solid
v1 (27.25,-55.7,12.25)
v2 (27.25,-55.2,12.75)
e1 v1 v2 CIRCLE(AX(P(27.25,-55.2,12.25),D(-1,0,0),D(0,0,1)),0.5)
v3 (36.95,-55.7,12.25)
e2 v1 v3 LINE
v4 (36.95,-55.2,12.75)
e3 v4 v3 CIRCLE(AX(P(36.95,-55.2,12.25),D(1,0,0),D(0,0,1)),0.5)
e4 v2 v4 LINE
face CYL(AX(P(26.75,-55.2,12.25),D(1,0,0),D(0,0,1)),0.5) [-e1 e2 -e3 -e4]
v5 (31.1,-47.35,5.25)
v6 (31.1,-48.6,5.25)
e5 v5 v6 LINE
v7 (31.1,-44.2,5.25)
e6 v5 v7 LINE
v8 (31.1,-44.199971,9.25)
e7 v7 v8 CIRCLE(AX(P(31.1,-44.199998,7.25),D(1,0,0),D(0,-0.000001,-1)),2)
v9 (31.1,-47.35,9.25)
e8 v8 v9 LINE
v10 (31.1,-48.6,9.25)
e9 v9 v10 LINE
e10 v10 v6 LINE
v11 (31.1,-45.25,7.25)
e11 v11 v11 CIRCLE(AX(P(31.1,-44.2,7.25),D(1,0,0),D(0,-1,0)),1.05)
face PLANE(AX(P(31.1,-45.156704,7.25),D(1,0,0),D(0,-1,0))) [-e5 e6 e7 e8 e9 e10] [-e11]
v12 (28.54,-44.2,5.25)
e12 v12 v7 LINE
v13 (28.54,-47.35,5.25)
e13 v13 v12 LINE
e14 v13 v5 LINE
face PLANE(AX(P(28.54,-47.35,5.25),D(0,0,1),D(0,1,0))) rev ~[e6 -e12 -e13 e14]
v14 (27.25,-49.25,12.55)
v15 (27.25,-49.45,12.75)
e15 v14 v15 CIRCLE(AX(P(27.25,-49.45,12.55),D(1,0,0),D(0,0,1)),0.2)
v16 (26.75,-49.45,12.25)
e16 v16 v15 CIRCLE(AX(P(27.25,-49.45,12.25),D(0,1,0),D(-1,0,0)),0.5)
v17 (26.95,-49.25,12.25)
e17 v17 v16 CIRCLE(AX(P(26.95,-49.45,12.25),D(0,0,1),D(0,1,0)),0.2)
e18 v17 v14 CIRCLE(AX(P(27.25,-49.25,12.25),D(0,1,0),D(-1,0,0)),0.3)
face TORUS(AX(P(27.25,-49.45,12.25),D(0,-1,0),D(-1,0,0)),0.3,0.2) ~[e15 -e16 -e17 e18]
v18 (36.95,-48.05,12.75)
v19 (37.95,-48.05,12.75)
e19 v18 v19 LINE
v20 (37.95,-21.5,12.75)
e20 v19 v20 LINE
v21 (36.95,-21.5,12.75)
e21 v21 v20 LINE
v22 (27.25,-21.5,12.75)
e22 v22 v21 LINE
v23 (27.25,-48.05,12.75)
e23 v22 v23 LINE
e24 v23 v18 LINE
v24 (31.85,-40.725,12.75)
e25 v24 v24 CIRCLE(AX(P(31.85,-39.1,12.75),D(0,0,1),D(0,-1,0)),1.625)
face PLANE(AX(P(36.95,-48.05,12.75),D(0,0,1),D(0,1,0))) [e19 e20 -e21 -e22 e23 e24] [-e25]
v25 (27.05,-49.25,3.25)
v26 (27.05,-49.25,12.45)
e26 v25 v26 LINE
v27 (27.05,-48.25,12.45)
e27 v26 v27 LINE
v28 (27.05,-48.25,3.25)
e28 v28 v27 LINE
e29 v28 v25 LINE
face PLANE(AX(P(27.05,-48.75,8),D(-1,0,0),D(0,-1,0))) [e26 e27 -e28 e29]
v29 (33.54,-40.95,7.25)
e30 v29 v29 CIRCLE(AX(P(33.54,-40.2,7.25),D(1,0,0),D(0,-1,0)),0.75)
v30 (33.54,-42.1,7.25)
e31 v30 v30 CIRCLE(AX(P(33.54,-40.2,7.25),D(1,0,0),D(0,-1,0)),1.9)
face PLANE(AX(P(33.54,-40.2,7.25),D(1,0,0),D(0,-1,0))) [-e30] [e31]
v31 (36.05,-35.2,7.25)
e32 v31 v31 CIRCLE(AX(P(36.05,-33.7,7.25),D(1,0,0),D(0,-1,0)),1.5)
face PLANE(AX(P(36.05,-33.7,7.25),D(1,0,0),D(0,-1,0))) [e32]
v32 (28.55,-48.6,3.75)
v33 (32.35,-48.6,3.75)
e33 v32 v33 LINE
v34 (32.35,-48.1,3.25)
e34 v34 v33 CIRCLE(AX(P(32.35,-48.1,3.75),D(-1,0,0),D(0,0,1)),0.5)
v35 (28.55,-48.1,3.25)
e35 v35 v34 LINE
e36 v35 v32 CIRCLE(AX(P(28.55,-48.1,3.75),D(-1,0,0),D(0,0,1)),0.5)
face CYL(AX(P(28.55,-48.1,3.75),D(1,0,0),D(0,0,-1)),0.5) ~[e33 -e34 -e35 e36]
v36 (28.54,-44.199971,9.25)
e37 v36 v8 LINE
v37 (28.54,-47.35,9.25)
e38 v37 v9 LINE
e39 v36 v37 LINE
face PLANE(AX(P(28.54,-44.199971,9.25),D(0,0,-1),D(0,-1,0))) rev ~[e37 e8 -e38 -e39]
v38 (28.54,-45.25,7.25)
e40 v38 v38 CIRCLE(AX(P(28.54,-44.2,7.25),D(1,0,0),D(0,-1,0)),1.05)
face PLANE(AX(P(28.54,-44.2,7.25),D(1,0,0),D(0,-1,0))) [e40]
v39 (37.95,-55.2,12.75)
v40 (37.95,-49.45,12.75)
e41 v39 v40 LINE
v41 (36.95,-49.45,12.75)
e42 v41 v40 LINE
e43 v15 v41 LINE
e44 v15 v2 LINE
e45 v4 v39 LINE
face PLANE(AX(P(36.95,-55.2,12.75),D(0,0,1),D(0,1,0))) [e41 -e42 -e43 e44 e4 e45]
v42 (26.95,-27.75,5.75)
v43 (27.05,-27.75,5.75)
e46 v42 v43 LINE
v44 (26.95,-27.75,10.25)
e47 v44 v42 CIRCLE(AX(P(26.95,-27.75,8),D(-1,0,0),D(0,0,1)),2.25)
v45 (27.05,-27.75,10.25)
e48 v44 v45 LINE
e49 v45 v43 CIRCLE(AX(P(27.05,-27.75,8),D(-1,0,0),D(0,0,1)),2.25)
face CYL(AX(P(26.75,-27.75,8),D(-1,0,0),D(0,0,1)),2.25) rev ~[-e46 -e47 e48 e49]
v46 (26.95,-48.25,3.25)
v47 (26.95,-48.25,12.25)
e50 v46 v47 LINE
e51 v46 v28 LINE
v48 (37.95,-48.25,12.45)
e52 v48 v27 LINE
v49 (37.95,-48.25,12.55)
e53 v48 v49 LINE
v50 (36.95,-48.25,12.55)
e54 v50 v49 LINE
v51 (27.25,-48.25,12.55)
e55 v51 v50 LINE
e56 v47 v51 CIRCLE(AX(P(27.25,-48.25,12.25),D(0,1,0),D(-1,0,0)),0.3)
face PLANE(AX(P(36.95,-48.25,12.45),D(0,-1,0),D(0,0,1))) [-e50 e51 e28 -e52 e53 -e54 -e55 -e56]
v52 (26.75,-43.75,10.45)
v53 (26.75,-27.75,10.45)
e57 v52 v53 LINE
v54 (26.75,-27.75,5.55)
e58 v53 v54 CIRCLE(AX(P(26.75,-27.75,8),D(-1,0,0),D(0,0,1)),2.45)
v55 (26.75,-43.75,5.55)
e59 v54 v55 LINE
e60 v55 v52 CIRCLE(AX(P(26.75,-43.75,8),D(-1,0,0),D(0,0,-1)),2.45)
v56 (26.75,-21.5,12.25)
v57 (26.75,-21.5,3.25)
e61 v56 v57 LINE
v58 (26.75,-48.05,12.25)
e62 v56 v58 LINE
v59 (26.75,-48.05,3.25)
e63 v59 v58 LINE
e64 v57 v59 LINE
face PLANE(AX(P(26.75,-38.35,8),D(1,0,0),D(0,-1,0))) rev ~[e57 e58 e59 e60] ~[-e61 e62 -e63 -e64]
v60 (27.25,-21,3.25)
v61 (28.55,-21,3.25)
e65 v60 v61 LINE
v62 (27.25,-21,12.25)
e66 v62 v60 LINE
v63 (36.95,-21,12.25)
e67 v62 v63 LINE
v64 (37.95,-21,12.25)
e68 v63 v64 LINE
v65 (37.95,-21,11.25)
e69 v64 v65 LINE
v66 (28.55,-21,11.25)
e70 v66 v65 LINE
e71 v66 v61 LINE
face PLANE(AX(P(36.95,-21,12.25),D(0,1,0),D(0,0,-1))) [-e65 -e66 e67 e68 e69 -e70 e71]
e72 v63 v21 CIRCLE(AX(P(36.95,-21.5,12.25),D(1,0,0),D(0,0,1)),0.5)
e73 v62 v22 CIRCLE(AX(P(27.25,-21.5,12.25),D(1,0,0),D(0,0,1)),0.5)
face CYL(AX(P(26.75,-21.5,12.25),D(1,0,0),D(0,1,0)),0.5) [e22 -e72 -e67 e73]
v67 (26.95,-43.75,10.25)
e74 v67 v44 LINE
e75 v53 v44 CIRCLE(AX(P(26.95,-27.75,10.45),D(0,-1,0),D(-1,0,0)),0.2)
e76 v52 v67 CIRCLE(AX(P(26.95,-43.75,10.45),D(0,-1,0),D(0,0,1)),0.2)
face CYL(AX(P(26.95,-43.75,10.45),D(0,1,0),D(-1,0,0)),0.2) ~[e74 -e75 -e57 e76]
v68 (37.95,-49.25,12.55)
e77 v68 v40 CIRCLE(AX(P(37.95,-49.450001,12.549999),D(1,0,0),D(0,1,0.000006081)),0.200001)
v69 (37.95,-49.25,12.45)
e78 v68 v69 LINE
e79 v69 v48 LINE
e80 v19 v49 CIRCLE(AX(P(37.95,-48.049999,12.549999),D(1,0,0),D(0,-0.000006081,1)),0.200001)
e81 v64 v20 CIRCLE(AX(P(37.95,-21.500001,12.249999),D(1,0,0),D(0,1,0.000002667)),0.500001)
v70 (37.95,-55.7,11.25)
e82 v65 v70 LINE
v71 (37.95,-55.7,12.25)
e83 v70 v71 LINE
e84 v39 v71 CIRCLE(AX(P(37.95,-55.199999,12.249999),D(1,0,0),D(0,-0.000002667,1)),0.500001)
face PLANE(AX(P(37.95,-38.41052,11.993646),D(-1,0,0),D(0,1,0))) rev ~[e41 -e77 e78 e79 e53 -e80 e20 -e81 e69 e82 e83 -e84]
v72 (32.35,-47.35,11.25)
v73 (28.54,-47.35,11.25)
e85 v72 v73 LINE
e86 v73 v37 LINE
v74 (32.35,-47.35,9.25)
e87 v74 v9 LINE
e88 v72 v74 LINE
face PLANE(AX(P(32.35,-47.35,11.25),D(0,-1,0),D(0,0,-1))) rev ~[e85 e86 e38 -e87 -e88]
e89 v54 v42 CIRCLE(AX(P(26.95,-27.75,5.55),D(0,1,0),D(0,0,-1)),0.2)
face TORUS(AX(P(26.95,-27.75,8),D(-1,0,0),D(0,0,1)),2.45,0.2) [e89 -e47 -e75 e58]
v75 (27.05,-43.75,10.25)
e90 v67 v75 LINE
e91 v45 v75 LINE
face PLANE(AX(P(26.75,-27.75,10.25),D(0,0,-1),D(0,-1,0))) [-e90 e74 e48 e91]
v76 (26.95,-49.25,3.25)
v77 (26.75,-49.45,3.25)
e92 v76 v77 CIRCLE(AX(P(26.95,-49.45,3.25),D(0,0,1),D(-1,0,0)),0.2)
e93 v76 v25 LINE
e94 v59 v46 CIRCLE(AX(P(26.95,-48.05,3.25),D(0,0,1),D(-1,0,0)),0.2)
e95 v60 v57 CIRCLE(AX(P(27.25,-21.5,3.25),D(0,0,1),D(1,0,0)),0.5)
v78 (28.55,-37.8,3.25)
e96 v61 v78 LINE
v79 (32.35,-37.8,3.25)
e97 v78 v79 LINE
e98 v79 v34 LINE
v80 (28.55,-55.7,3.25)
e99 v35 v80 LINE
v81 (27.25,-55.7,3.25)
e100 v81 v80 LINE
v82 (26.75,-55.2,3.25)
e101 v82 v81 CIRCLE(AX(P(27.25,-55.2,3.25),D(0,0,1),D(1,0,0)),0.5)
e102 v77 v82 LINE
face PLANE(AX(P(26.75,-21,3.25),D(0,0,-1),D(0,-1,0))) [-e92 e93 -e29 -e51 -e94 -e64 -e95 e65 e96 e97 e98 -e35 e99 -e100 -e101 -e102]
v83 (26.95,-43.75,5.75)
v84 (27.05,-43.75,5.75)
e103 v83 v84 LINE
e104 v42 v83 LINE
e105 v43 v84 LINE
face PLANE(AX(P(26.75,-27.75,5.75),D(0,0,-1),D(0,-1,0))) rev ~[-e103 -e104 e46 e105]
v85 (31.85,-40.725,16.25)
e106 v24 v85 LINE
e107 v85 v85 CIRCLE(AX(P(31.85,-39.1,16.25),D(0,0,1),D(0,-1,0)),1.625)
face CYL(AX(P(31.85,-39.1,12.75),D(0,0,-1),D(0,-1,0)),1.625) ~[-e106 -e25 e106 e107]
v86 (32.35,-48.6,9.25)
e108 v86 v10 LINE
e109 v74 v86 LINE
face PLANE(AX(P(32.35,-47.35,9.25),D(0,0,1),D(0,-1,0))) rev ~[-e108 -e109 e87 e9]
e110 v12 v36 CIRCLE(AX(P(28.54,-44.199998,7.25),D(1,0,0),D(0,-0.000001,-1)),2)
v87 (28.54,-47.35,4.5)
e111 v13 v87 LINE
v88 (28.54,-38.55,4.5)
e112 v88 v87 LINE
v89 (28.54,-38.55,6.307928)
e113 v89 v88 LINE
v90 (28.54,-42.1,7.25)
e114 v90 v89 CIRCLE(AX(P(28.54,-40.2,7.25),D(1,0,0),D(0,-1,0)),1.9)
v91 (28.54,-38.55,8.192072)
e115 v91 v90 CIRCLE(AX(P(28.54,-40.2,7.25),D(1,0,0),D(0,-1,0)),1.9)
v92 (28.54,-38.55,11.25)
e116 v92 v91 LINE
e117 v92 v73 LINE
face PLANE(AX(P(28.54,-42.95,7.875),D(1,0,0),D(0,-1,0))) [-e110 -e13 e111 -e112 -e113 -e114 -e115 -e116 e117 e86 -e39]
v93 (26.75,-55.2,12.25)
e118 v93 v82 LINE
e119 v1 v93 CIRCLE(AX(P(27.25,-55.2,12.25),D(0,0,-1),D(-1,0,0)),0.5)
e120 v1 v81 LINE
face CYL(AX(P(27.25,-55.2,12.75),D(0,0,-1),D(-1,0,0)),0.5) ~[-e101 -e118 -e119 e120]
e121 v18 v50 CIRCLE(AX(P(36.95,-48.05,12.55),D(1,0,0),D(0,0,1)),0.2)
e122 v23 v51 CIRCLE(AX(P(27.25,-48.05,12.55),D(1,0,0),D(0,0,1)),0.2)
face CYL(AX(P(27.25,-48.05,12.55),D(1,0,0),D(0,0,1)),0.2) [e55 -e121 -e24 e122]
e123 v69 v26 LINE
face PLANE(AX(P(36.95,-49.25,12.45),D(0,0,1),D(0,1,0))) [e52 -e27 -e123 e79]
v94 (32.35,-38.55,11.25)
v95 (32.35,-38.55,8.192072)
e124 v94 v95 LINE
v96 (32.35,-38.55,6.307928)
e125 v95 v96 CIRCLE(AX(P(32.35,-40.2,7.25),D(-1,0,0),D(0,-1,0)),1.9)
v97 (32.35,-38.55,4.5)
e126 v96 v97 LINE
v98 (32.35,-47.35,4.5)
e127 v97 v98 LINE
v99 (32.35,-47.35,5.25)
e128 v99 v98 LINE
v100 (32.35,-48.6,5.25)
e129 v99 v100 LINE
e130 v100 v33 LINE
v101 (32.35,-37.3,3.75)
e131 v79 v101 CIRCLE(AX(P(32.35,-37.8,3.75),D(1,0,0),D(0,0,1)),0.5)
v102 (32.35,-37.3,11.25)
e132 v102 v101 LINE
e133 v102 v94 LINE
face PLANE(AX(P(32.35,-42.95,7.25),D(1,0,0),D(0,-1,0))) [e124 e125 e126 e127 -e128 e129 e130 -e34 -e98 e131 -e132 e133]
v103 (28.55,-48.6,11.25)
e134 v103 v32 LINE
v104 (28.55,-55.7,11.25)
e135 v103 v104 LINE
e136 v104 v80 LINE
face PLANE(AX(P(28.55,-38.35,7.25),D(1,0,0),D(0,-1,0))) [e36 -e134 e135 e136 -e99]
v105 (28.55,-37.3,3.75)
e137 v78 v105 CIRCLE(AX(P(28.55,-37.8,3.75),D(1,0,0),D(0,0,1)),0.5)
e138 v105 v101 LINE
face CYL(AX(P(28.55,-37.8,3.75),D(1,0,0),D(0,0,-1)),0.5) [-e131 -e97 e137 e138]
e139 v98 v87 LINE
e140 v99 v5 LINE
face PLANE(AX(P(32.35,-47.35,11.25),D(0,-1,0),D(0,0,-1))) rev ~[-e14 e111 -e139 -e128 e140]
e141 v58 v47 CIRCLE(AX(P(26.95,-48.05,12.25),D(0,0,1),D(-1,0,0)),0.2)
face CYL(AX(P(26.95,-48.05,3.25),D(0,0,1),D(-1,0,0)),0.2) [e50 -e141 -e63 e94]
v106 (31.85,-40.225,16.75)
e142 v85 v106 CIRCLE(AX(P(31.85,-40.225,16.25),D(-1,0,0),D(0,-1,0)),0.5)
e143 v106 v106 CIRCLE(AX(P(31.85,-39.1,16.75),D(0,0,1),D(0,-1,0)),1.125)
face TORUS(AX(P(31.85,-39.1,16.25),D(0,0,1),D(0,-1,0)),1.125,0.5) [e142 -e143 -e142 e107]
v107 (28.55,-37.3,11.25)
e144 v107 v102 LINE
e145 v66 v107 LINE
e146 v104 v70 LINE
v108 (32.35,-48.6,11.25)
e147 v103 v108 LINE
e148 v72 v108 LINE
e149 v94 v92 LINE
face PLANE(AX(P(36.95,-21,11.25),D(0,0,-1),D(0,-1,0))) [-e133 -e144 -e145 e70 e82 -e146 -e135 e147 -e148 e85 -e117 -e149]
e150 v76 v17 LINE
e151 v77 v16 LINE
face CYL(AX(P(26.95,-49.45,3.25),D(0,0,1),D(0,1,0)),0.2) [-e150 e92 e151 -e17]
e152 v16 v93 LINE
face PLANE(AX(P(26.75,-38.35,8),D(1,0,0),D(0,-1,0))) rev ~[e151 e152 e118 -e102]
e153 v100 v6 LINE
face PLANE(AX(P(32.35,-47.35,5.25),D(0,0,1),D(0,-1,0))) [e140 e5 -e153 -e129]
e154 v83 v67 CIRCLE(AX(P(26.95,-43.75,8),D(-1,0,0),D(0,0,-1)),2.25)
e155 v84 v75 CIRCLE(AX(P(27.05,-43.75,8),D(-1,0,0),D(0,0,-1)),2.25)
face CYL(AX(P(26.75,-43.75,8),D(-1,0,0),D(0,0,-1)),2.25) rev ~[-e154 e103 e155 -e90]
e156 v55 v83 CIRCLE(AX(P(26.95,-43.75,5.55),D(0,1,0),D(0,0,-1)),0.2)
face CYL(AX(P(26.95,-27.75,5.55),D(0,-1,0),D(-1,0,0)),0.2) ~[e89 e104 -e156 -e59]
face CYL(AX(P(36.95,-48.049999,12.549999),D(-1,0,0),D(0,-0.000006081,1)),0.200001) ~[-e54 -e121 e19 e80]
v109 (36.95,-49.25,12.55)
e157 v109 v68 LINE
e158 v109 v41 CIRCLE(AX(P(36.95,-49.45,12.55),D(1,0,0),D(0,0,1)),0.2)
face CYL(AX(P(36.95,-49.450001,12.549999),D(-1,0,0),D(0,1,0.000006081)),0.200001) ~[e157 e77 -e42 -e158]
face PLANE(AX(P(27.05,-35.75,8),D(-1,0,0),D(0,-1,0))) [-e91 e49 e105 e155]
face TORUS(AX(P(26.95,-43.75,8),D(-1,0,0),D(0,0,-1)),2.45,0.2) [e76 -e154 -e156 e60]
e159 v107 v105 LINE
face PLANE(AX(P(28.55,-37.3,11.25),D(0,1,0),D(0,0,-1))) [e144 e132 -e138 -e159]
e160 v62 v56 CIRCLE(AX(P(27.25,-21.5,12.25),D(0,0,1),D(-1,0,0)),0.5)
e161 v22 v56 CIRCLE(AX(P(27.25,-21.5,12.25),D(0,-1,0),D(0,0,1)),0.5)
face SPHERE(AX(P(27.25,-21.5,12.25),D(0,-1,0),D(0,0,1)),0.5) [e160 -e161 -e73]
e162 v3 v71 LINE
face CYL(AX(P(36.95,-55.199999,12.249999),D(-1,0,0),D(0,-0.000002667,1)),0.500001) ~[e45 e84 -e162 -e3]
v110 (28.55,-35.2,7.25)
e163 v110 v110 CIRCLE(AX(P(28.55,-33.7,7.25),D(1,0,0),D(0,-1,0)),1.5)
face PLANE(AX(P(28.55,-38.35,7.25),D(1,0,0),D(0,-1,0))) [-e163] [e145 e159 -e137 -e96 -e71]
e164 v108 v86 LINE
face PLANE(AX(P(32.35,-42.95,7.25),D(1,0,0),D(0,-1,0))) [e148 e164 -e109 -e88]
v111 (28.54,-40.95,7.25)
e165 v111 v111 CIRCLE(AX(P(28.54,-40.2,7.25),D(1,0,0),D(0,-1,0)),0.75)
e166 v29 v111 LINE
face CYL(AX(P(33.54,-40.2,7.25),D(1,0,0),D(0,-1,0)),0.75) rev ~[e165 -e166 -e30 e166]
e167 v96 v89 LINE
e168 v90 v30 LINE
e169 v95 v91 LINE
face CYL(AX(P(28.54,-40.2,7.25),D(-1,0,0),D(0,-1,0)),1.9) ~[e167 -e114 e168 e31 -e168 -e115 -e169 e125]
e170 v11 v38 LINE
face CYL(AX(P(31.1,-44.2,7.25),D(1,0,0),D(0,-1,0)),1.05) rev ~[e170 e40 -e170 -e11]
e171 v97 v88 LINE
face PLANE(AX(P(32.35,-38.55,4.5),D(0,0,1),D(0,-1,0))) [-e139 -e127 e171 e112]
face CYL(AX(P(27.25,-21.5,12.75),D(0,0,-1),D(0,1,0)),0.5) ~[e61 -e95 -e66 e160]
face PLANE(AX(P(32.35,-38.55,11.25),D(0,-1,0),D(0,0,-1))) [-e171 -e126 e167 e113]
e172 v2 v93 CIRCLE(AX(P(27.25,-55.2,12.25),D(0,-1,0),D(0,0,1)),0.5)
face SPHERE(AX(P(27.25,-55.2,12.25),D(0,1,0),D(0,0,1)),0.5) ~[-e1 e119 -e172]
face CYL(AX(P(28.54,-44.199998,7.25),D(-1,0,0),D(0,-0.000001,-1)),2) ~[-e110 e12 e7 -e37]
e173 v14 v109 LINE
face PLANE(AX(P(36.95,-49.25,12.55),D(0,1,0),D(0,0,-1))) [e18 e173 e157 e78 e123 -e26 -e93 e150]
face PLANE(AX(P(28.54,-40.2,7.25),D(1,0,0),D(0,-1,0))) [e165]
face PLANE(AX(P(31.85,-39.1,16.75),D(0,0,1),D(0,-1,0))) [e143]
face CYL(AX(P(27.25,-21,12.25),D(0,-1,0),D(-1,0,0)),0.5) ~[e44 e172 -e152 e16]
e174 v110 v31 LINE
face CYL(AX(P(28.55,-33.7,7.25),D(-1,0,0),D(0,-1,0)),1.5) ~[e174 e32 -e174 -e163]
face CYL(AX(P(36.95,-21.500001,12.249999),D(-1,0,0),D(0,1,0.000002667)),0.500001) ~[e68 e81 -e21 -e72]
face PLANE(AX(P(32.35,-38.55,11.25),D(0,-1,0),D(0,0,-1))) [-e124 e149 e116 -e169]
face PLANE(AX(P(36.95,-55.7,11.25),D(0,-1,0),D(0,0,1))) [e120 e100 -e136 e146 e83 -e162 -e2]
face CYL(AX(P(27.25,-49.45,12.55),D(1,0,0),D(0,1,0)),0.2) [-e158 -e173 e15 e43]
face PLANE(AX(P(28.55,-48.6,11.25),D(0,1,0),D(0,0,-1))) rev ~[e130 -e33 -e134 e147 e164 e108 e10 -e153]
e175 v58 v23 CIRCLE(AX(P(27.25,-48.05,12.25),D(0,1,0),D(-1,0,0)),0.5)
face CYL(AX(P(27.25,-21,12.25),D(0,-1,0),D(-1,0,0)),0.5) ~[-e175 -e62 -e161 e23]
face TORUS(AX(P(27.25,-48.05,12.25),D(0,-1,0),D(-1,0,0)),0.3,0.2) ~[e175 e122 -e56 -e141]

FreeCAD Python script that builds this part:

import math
import FreeCAD as App
import Part
import Sketcher


def edges_at(feature, points):
    """Names of the edges that pass closest to the given points."""
    edges = feature.Shape.Edges
    near = lambda p: min(range(len(edges)), key=lambda i: edges[i].distToShape(Part.Vertex(*p))[0])
    return sorted({f"Edge{near(p) + 1}" for p in points})


def add_polygon(sketch, points):
    """Adds a closed chain of lines whose ends are joined by coincident constraints."""
    first, n = sketch.GeometryCount, len(points)
    for a, b in zip(points, points[1:] + points[:1]):
        sketch.addGeometry(Part.LineSegment(App.Vector(*a, 0), App.Vector(*b, 0)), False)
    for i in range(n):
        sketch.addConstraint(Sketcher.Constraint("Coincident", first + i, 2, first + (i + 1) % n, 1))

doc = App.newDocument("Part")
body = doc.addObject("PartDesign::Body", "Body")

# Sketch on XY plane
sketch1 = body.newObject("Sketcher::SketchObject", "Sketch")
sketch1.AttachmentSupport = (doc.getObject("XY_Plane"), [""])
sketch1.MapMode = "FlatFace"
add_polygon(sketch1, [(-35, 5), (-35, -5), (0, -5), (0, 5)])  # lines 0-3
sketch1.addConstraint(Sketcher.Constraint("Vertical", 0))
sketch1.addConstraint(Sketcher.Constraint("Horizontal", 1))
sketch1.addConstraint(Sketcher.Constraint("Vertical", 2))
sketch1.addConstraint(Sketcher.Constraint("Horizontal", 3))
sketch1.addConstraint(Sketcher.Constraint("Symmetric", 1, 2, 2, 2, -1, 1))
sketch1.addConstraint(Sketcher.Constraint("DistanceX", 1, 1, 1, 2, 34.7))
sketch1.addConstraint(Sketcher.Constraint("DistanceY", 0, 2, 0, 1, 9.5))
pad1 = body.newObject("PartDesign::Pad", "Pad")
pad1.Profile = sketch1
pad1.Length = 10.2

# Sketch on XY plane
sketch2 = body.newObject("Sketcher::SketchObject", "Sketch001")
sketch2.AttachmentSupport = (doc.getObject("XY_Plane"), [""])
sketch2.MapMode = "FlatFace"
sketch2.AttachmentOffset = App.Placement(App.Vector(0, 0, 10.2), App.Rotation())
add_polygon(sketch2, [(-35, 5), (-35, -3), (0, -3), (0, 5)])  # lines 0-3
sketch2.addConstraint(Sketcher.Constraint("Vertical", 0))
sketch2.addConstraint(Sketcher.Constraint("Horizontal", 1))
sketch2.addConstraint(Sketcher.Constraint("Vertical", 2))
sketch2.addConstraint(Sketcher.Constraint("Horizontal", 3))
sketch2.addConstraint(Sketcher.Constraint("PointOnObject", 1, 2, -2))
sketch2.addConstraint(Sketcher.Constraint("DistanceY", 0, 2, 0, 1, 8.0))
sketch2.addConstraint(Sketcher.Constraint("DistanceX", 1, 1, 1, 2, 34.7))
sketch2.addConstraint(Sketcher.Constraint("DistanceY", 0, 2, -1, 1, 3.25))
pocket1 = body.newObject("PartDesign::Pocket", "Pocket")
pocket1.Profile = sketch2
pocket1.Length = 8.4

# Sketch on XY plane
sketch3 = body.newObject("Sketcher::SketchObject", "Sketch002")
sketch3.AttachmentSupport = (doc.getObject("XY_Plane"), [""])
sketch3.MapMode = "FlatFace"
sketch3.AttachmentOffset = App.Placement(App.Vector(0, 0, 1.8), App.Rotation())
add_polygon(sketch3, [(-18, 5), (-18, -3), (-7, -3), (-7, 5)])  # lines 0-3
sketch3.addConstraint(Sketcher.Constraint("Vertical", 0))
sketch3.addConstraint(Sketcher.Constraint("Horizontal", 1))
sketch3.addConstraint(Sketcher.Constraint("Vertical", 2))
sketch3.addConstraint(Sketcher.Constraint("Horizontal", 3))
sketch3.addConstraint(Sketcher.Constraint("DistanceY", 0, 2, 0, 1, 8.0))
sketch3.addConstraint(Sketcher.Constraint("DistanceX", 1, 1, 1, 2, 11.3))
sketch3.addConstraint(Sketcher.Constraint("DistanceX", 0, 2, -1, 1, 18.4))
sketch3.addConstraint(Sketcher.Constraint("DistanceY", 0, 2, -1, 1, 3.25))
pad2 = body.newObject("PartDesign::Pad", "Pad001")
pad2.Profile = sketch3
pad2.Length = 3.8

# Sketch on XY plane
sketch4 = body.newObject("Sketcher::SketchObject", "Sketch003")
sketch4.AttachmentSupport = (doc.getObject("XY_Plane"), [""])
sketch4.MapMode = "FlatFace"
sketch4.AttachmentOffset = App.Placement(App.Vector(0, 0, 1.8), App.Rotation())
sketch4.addGeometry(Part.Circle(App.Vector(-22, 0.8, 0), App.Vector(0, 0, 1), 1.5), False)
sketch4.addConstraint(Sketcher.Constraint("Diameter", 0, 3.0))
sketch4.addConstraint(Sketcher.Constraint("DistanceX", 0, 3, -1, 1, 22.0))
sketch4.addConstraint(Sketcher.Constraint("DistanceY", -1, 1, 0, 3, 0.75))
pad3 = body.newObject("PartDesign::Pad", "Pad002")
pad3.Profile = sketch4
pad3.Length = 7.5
doc.recompute()

fillet = body.newObject("PartDesign::Fillet", "Fillet")
fillet.Base = (pad3, edges_at(pad3, [
    (-17.35, -4.75, 0),
    (-34.7, -4.75, 5.1),
    (-34.7, 0, 0),
    (0, -4.75, 5.1),
    (0, 0, 0),
]))
fillet.Radius = 0.5

# Sketch on XY plane
sketch5 = body.newObject("Sketcher::SketchObject", "Sketch004")
sketch5.AttachmentSupport = (doc.getObject("XY_Plane"), [""])
sketch5.MapMode = "FlatFace"
sketch5.AttachmentOffset = App.Placement(App.Vector(0, 0, 5.6), App.Rotation())
add_polygon(sketch5, [(-17, 4), (-17, -3), (-8, -3), (-8, 4)])  # lines 0-3
sketch5.addConstraint(Sketcher.Constraint("Vertical", 0))
sketch5.addConstraint(Sketcher.Constraint("Horizontal", 1))
sketch5.addConstraint(Sketcher.Constraint("Vertical", 2))
sketch5.addConstraint(Sketcher.Constraint("Horizontal", 3))
sketch5.addConstraint(Sketcher.Constraint("DistanceX", 1, 1, 1, 2, 8.8))
sketch5.addConstraint(Sketcher.Constraint("DistanceY", 0, 2, 0, 1, 6.75))
sketch5.addConstraint(Sketcher.Constraint("DistanceY", -1, 1, 2, 2, 3.5))
sketch5.addConstraint(Sketcher.Constraint("DistanceX", 0, 2, -1, 1, 17.15))
pocket2 = body.newObject("PartDesign::Pocket", "Pocket001")
pocket2.Profile = sketch5
pocket2.Length = 3.81

# Sketch on XY plane
sketch6 = body.newObject("Sketcher::SketchObject", "Sketch005")
sketch6.AttachmentSupport = (doc.getObject("XY_Plane"), [""])
sketch6.MapMode = "FlatFace"
sketch6.AttachmentOffset = App.Placement(App.Vector(0, 0, 5.6), App.Rotation())
add_polygon(sketch6, [(-8.3, 2.8), (-8.3, -1.2), (-7.1, -1.2), (-7.1, 2.8)])  # lines 0-3
sketch6.addConstraint(Sketcher.Constraint("Vertical", 0))
sketch6.addConstraint(Sketcher.Constraint("Horizontal", 1))
sketch6.addConstraint(Sketcher.Constraint("Vertical", 2))
sketch6.addConstraint(Sketcher.Constraint("Horizontal", 3))
sketch6.addConstraint(Sketcher.Constraint("DistanceY", 0, 2, 0, 1, 4.0))
sketch6.addConstraint(Sketcher.Constraint("DistanceX", 1, 1, 1, 2, 1.25))
sketch6.addConstraint(Sketcher.Constraint("DistanceX", 1, 2, -1, 1, 7.1))
sketch6.addConstraint(Sketcher.Constraint("DistanceY", 0, 2, -1, 1, 1.25))
pocket3 = body.newObject("PartDesign::Pocket", "Pocket002")
pocket3.Profile = sketch6
pocket3.Length = 1.25

# Sketch on XY plane
sketch7 = body.newObject("Sketcher::SketchObject", "Sketch006")
sketch7.AttachmentSupport = (doc.getObject("XY_Plane"), [""])
sketch7.MapMode = "FlatFace"
sketch7.AttachmentOffset = App.Placement(App.Vector(0, 0, 1.79), App.Rotation())
sketch7.addGeometry(Part.LineSegment(App.Vector(-8.3, 2.8, 0), App.Vector(-11.5, 2.8, 0)), False)
sketch7.addGeometry(Part.ArcOfCircle(Part.Circle(App.Vector(-11.5, 0.8, 0), App.Vector(0, 0, 1), 2), math.radians(90), math.radians(270)), False)
sketch7.addGeometry(Part.LineSegment(App.Vector(-11.5, -1.2, 0), App.Vector(-8.3, -1.2, 0)), False)
sketch7.addGeometry(Part.LineSegment(App.Vector(-8.3, -1.2, 0), App.Vector(-8.3, 2.8, 0)), False)
sketch7.addConstraint(Sketcher.Constraint("Tangent", 0, 2, 1, 1))
sketch7.addConstraint(Sketcher.Constraint("Coincident", 1, 2, 2, 1))
sketch7.addConstraint(Sketcher.Constraint("Coincident", 2, 2, 3, 1))
sketch7.addConstraint(Sketcher.Constraint("Coincident", 3, 2, 0, 1))
sketch7.addConstraint(Sketcher.Constraint("Horizontal", 0))
sketch7.addConstraint(Sketcher.Constraint("Horizontal", 2))
sketch7.addConstraint(Sketcher.Constraint("Vertical", 3))
sketch7.addConstraint(Sketcher.Constraint("Radius", 1, 2.0))
sketch7.addConstraint(Sketcher.Constraint("DistanceX", 0, 2, 0, 1, 3.15))
sketch7.addConstraint(Sketcher.Constraint("DistanceX", 0, 2, -1, 1, 11.5))
sketch7.addConstraint(Sketcher.Constraint("DistanceY", -1, 1, 1, 3, 0.75))
sketch7.addConstraint(Sketcher.Constraint("DistanceX", 2, 1, 2, 2, 3.150029))
pad4 = body.newObject("PartDesign::Pad", "Pad003")
pad4.Profile = sketch7
pad4.Length = 2.56

# Sketch on XY plane
sketch8 = body.newObject("Sketcher::SketchObject", "Sketch007")
sketch8.AttachmentSupport = (doc.getObject("XY_Plane"), [""])
sketch8.MapMode = "FlatFace"
sketch8.AttachmentOffset = App.Placement(App.Vector(0, 0, 1.79), App.Rotation())
sketch8.addGeometry(Part.Circle(App.Vector(-15.5, 0.8, 0), App.Vector(0, 0, 1), 1.9), False)
sketch8.addConstraint(Sketcher.Constraint("Diameter", 0, 3.8))
sketch8.addConstraint(Sketcher.Constraint("DistanceX", 0, 3, -1, 1, 15.5))
sketch8.addConstraint(Sketcher.Constraint("DistanceY", -1, 1, 0, 3, 0.75))
pad5 = body.newObject("PartDesign::Pad", "Pad004")
pad5.Profile = sketch8
pad5.Length = 5

# Sketch on XY plane
sketch9 = body.newObject("Sketcher::SketchObject", "Sketch008")
sketch9.AttachmentSupport = (doc.getObject("XY_Plane"), [""])
sketch9.MapMode = "FlatFace"
sketch9.AttachmentOffset = App.Placement(App.Vector(0, 0, 4.35), App.Rotation())
sketch9.addGeometry(Part.Circle(App.Vector(-11.5, 0.8, 0), App.Vector(0, 0, 1), 1.1), False)
sketch9.addConstraint(Sketcher.Constraint("Diameter", 0, 2.1))
sketch9.addConstraint(Sketcher.Constraint("DistanceX", 0, 3, -1, 1, 11.5))
sketch9.addConstraint(Sketcher.Constraint("DistanceY", -1, 1, 0, 3, 0.75))
pocket4 = body.newObject("PartDesign::Pocket", "Pocket003")
pocket4.Profile = sketch9
pocket4.Length = 2.56

# Sketch on XY plane
sketch10 = body.newObject("Sketcher::SketchObject", "Sketch009")
sketch10.AttachmentSupport = (doc.getObject("XY_Plane"), [""])
sketch10.MapMode = "FlatFace"
sketch10.AttachmentOffset = App.Placement(App.Vector(0, 0, 6.79), App.Rotation())
sketch10.addGeometry(Part.Circle(App.Vector(-15.5, 0.8, 0), App.Vector(0, 0, 1), 0.8), False)
sketch10.addConstraint(Sketcher.Constraint("Diameter", 0, 1.5))
sketch10.addConstraint(Sketcher.Constraint("DistanceX", 0, 3, -1, 1, 15.5))
sketch10.addConstraint(Sketcher.Constraint("DistanceY", -1, 1, 0, 3, 0.75))
pocket5 = body.newObject("PartDesign::Pocket", "Pocket004")
pocket5.Profile = sketch10
pocket5.Length = 5

# Sketch on XY plane
sketch11 = body.newObject("Sketcher::SketchObject", "Sketch010")
sketch11.AttachmentSupport = (doc.getObject("XY_Plane"), [""])
sketch11.MapMode = "FlatFace"
sketch11.addGeometry(Part.ArcOfCircle(Part.Circle(App.Vector(-27.9, 0, 0), App.Vector(0, 0, 1), 2.2), math.radians(90), math.radians(270)), False)  # 0
sketch11.addGeometry(Part.LineSegment(App.Vector(-27.9, 2.2, 0), App.Vector(-11.9, 2.2, 0)), False)  # 1
sketch11.addGeometry(Part.ArcOfCircle(Part.Circle(App.Vector(-11.9, 0, 0), App.Vector(0, 0, 1), 2.2), math.radians(-90), math.radians(90)), False)  # 2
sketch11.addGeometry(Part.LineSegment(App.Vector(-11.9, -2.2, 0), App.Vector(-27.9, -2.2, 0)), False)  # 3
add_polygon(sketch11, [(-7.5, -4.8), (-7.5, 4.8), (-6.5, 4.8), (-6.5, -4.8)])  # lines 4-7
sketch11.addConstraint(Sketcher.Constraint("Tangent", 0, 1, 1, 1))
sketch11.addConstraint(Sketcher.Constraint("Tangent", 1, 2, 2, 2))
sketch11.addConstraint(Sketcher.Constraint("Tangent", 2, 1, 3, 1))
sketch11.addConstraint(Sketcher.Constraint("Tangent", 3, 2, 0, 2))
sketch11.addConstraint(Sketcher.Constraint("Horizontal", 1))
sketch11.addConstraint(Sketcher.Constraint("Horizontal", 3))
sketch11.addConstraint(Sketcher.Constraint("Vertical", 4))
sketch11.addConstraint(Sketcher.Constraint("Horizontal", 5))
sketch11.addConstraint(Sketcher.Constraint("Vertical", 6))
sketch11.addConstraint(Sketcher.Constraint("Horizontal", 7))
sketch11.addConstraint(Sketcher.Constraint("PointOnObject", 0, 3, -1))
sketch11.addConstraint(Sketcher.Constraint("DistanceX", 1, 1, 1, 2, 16.0))
sketch11.addConstraint(Sketcher.Constraint("DistanceX", 5, 1, 5, 2, 1.0))
sketch11.addConstraint(Sketcher.Constraint("Radius", 0, 2.25))
sketch11.addConstraint(Sketcher.Constraint("DistanceY", 4, 1, 4, 2, 9.5))
sketch11.addConstraint(Sketcher.Constraint("DistanceY", 2, 1, 4, 2, 7.0))
sketch11.addConstraint(Sketcher.Constraint("DistanceX", 1, 2, 4, 2, 4.5))
sketch11.addConstraint(Sketcher.Constraint("DistanceX", 0, 3, -1, 1, 27.95))
pocket6 = body.newObject("PartDesign::Pocket", "Pocket005")
pocket6.Profile = sketch11
pocket6.Length = 0.3
pocket6.Reversed = True

# Sketch on XZ plane
sketch12 = body.newObject("Sketcher::SketchObject", "Sketch011")
sketch12.AttachmentSupport = (doc.getObject("XZ_Plane"), [""])
sketch12.MapMode = "FlatFace"
sketch12.AttachmentOffset = App.Placement(App.Vector(0, 0, 4.75), App.Rotation())
add_polygon(sketch12, [(-7.5, 10.2), (-7.5, 0), (-6.5, 0), (-6.5, 10.2)])  # lines 0-3
sketch12.addConstraint(Sketcher.Constraint("Vertical", 0))
sketch12.addConstraint(Sketcher.Constraint("Horizontal", 1))
sketch12.addConstraint(Sketcher.Constraint("Vertical", 2))
sketch12.addConstraint(Sketcher.Constraint("Horizontal", 3))
sketch12.addConstraint(Sketcher.Constraint("PointOnObject", 0, 2, -1))
sketch12.addConstraint(Sketcher.Constraint("DistanceX", 1, 1, 1, 2, 1.0))
sketch12.addConstraint(Sketcher.Constraint("DistanceY", 0, 2, 0, 1, 10.2))
sketch12.addConstraint(Sketcher.Constraint("DistanceX", 0, 2, -1, 1, 7.45))
pocket7 = body.newObject("PartDesign::Pocket", "Pocket006")
pocket7.Profile = sketch12
pocket7.Length = 0.3
doc.recompute()

fillet2 = body.newObject("PartDesign::Fillet", "Fillet001")
fillet2.Base = (pocket7, edges_at(pocket7, [
    (-9.7, 0, 0),
    (-19.95, 2.25, 0),
    (-19.95, -2.25, 0),
    (-30.2, 0, 0),
]))
fillet2.Radius = 0.2
doc.recompute()

fillet3 = body.newObject("PartDesign::Fillet", "Fillet002")
fillet3.Base = (fillet2, edges_at(fillet2, [
    (-7.45, 0.25, 0),
    (-6.45, 0.25, 0),
    (-7.45, -4.604, 0.146),
    (-7.45, -4.604, 0.146),
    (-7.45, -4.604, 0.146),
    (-7.45, -4.75, 5.35),
    (-6.45, -4.75, 5.35),
    (-6.45, -4.604, 0.146),
    (-6.45, -4.604, 0.146),
    (-6.45, -4.604, 0.146),
]))
fillet3.Radius = 0.2

# Sketch on XZ plane
sketch13 = body.newObject("Sketcher::SketchObject", "Sketch012")
sketch13.AttachmentSupport = (doc.getObject("XZ_Plane"), [""])
sketch13.MapMode = "FlatFace"
sketch13.AttachmentOffset = App.Placement(App.Vector(0, 0, 4.75), App.Rotation())
sketch13.addGeometry(Part.Circle(App.Vector(-16.6, 5.1, 0), App.Vector(0, 0, 1), 1.6), False)
sketch13.addConstraint(Sketcher.Constraint("Diameter", 0, 3.25))
sketch13.addConstraint(Sketcher.Constraint("DistanceX", 0, 3, -1, 1, 16.6))
sketch13.addConstraint(Sketcher.Constraint("DistanceY", -1, 1, 0, 3, 5.1))
pad6 = body.newObject("PartDesign::Pad", "Pad005")
pad6.Profile = sketch13
pad6.Length = 4
doc.recompute()

fillet4 = body.newObject("PartDesign::Fillet", "Fillet003")
fillet4.Base = (pad6, edges_at(pad6, [(-18.225, -8.75, 5.1)]))
fillet4.Radius = 0.5
doc.recompute()

fillet5 = body.newObject("PartDesign::Fillet", "Fillet004")
fillet5.Base = (fillet4, edges_at(fillet4, [(-7.1, 4.75, 3.7), (-18.4, 4.75, 3.7)]))
fillet5.Radius = 0.5

# Sketch on XY plane
sketch14 = body.newObject("Sketcher::SketchObject", "Sketch013")
sketch14.AttachmentSupport = (doc.getObject("XY_Plane"), [""])
sketch14.MapMode = "FlatFace"
sketch14.AttachmentOffset = App.Placement(App.Vector(0, 0, 10.2), App.Rotation())
sketch14.addGeometry(Part.LineSegment(App.Vector(0, -4.25, 0), App.Vector(0, -3.25, 0)), False)
sketch14.addGeometry(Part.LineSegment(App.Vector(0, -3.25, 0), App.Vector(-34.7, -3.25, 0)), False)
sketch14.addGeometry(Part.LineSegment(App.Vector(-34.7, -3.25, 0), App.Vector(-34.7, -4.25, 0)), False)
sketch14.addGeometry(Part.ArcOfCircle(Part.Circle(App.Vector(-34.2, -4.25, 0), App.Vector(0, 0, 1), 0.5), math.radians(-180), math.radians(-90)), False)
sketch14.addGeometry(Part.LineSegment(App.Vector(-34.2, -4.75, 0), App.Vector(-7.65, -4.75, 0)), False)
sketch14.addGeometry(Part.ArcOfCircle(Part.Circle(App.Vector(-7.65, -4.55, 0), App.Vector(0, 0, 1), 0.2), math.radians(-90), math.radians(0)), False)
sketch14.addGeometry(Part.LineSegment(App.Vector(-7.45, -4.55, 0), App.Vector(-7.45, -4.45, 0)), False)
sketch14.addGeometry(Part.LineSegment(App.Vector(-7.45, -4.45, 0), App.Vector(-6.45, -4.45, 0)), False)
sketch14.addGeometry(Part.LineSegment(App.Vector(-6.45, -4.45, 0), App.Vector(-6.45, -4.55, 0)), False)
sketch14.addGeometry(Part.ArcOfCircle(Part.Circle(App.Vector(-6.25, -4.55, 0), App.Vector(0, 0, 1), 0.2), math.radians(-180), math.radians(-90)), False)
sketch14.addGeometry(Part.LineSegment(App.Vector(-6.25, -4.75, 0), App.Vector(-0.5, -4.75, 0)), False)
sketch14.addGeometry(Part.ArcOfCircle(Part.Circle(App.Vector(-0.5, -4.25, 0), App.Vector(0, 0, 1), 0.5), math.radians(-90), math.radians(0)), False)
sketch14.addConstraint(Sketcher.Constraint("Coincident", 0, 2, 1, 1))
sketch14.addConstraint(Sketcher.Constraint("Coincident", 1, 2, 2, 1))
sketch14.addConstraint(Sketcher.Constraint("Coincident", 2, 2, 3, 1))
sketch14.addConstraint(Sketcher.Constraint("Coincident", 3, 2, 4, 1))
sketch14.addConstraint(Sketcher.Constraint("Coincident", 4, 2, 5, 1))
sketch14.addConstraint(Sketcher.Constraint("Coincident", 5, 2, 6, 1))
sketch14.addConstraint(Sketcher.Constraint("Coincident", 6, 2, 7, 1))
sketch14.addConstraint(Sketcher.Constraint("Coincident", 7, 2, 8, 1))
sketch14.addConstraint(Sketcher.Constraint("Coincident", 8, 2, 9, 1))
sketch14.addConstraint(Sketcher.Constraint("Coincident", 9, 2, 10, 1))
sketch14.addConstraint(Sketcher.Constraint("Coincident", 10, 2, 11, 1))
sketch14.addConstraint(Sketcher.Constraint("Coincident", 11, 2, 0, 1))
sketch14.addConstraint(Sketcher.Constraint("Vertical", 0))
sketch14.addConstraint(Sketcher.Constraint("Horizontal", 1))
sketch14.addConstraint(Sketcher.Constraint("Vertical", 2))
sketch14.addConstraint(Sketcher.Constraint("Horizontal", 4))
sketch14.addConstraint(Sketcher.Constraint("Vertical", 6))
sketch14.addConstraint(Sketcher.Constraint("Horizontal", 7))
sketch14.addConstraint(Sketcher.Constraint("Vertical", 8))
sketch14.addConstraint(Sketcher.Constraint("Horizontal", 10))
sketch14.addConstraint(Sketcher.Constraint("Equal", 5, 9))
sketch14.addConstraint(Sketcher.Constraint("Equal", 3, 11))
sketch14.addConstraint(Sketcher.Constraint("PointOnObject", 0, 2, -2))
sketch14.addConstraint(Sketcher.Constraint("Horizontal", 5, 3, 9, 3))
sketch14.addConstraint(Sketcher.Constraint("Horizontal", 11, 3, 2, 2))
sketch14.addConstraint(Sketcher.Constraint("Horizontal", 9, 3, 5, 2))
sketch14.addConstraint(Sketcher.Constraint("Horizontal", 5, 2, 8, 2))
sketch14.addConstraint(Sketcher.Constraint("Horizontal", 2, 2, 11, 2))
sketch14.addConstraint(Sketcher.Constraint("Vertical", 5, 3, 4, 2))
sketch14.addConstraint(Sketcher.Constraint("Vertical", 11, 3, 10, 2))
sketch14.addConstraint(Sketcher.Constraint("Equal", 7, 0))
sketch14.addConstraint(Sketcher.Constraint("Radius", 3, 0.500001))
sketch14.addConstraint(Sketcher.Constraint("Radius", 5, 0.200001))
sketch14.addConstraint(Sketcher.Constraint("DistanceX", 7, 1, 7, 2, 1.0))
sketch14.addConstraint(Sketcher.Constraint("DistanceX", 1, 2, 1, 1, 34.7))
sketch14.addConstraint(Sketcher.Constraint("DistanceY", 6, 1, 6, 2, 0.1))
sketch14.addConstraint(Sketcher.Constraint("DistanceX", 4, 1, 4, 2, 26.55))
sketch14.addConstraint(Sketcher.Constraint("DistanceX", 10, 1, 10, 2, 5.75))
sketch14.addConstraint(Sketcher.Constraint("DistanceX", 3, 2, -1, 1, 34.2))
sketch14.addConstraint(Sketcher.Constraint("DistanceY", 3, 3, -1, 1, 4.249999))
pad7 = body.newObject("PartDesign::Pad", "Pad006")
pad7.Profile = sketch14
pad7.Length = 1
body2 = doc.addObject("PartDesign::Body", "Body001")
doc.recompute()

body.Placement = App.Placement(App.Vector(0, 0, 0), App.Rotation(App.Vector(1, 0, 0), 270))
boolean = body2.newObject("PartDesign::Boolean", "Boolean")
boolean.Type = "Fuse"
boolean.addObjects([body])
body3 = doc.addObject("PartDesign::Body", "Body002")
doc.recompute()

body2.Placement = App.Placement(App.Vector(26.75, -55.7, 8), App.Rotation(App.Vector(0, 0, 1), 270))
boolean2 = body3.newObject("PartDesign::Boolean", "Boolean001")
boolean2.Type = "Fuse"
boolean2.addObjects([body2])

doc.recompute()
